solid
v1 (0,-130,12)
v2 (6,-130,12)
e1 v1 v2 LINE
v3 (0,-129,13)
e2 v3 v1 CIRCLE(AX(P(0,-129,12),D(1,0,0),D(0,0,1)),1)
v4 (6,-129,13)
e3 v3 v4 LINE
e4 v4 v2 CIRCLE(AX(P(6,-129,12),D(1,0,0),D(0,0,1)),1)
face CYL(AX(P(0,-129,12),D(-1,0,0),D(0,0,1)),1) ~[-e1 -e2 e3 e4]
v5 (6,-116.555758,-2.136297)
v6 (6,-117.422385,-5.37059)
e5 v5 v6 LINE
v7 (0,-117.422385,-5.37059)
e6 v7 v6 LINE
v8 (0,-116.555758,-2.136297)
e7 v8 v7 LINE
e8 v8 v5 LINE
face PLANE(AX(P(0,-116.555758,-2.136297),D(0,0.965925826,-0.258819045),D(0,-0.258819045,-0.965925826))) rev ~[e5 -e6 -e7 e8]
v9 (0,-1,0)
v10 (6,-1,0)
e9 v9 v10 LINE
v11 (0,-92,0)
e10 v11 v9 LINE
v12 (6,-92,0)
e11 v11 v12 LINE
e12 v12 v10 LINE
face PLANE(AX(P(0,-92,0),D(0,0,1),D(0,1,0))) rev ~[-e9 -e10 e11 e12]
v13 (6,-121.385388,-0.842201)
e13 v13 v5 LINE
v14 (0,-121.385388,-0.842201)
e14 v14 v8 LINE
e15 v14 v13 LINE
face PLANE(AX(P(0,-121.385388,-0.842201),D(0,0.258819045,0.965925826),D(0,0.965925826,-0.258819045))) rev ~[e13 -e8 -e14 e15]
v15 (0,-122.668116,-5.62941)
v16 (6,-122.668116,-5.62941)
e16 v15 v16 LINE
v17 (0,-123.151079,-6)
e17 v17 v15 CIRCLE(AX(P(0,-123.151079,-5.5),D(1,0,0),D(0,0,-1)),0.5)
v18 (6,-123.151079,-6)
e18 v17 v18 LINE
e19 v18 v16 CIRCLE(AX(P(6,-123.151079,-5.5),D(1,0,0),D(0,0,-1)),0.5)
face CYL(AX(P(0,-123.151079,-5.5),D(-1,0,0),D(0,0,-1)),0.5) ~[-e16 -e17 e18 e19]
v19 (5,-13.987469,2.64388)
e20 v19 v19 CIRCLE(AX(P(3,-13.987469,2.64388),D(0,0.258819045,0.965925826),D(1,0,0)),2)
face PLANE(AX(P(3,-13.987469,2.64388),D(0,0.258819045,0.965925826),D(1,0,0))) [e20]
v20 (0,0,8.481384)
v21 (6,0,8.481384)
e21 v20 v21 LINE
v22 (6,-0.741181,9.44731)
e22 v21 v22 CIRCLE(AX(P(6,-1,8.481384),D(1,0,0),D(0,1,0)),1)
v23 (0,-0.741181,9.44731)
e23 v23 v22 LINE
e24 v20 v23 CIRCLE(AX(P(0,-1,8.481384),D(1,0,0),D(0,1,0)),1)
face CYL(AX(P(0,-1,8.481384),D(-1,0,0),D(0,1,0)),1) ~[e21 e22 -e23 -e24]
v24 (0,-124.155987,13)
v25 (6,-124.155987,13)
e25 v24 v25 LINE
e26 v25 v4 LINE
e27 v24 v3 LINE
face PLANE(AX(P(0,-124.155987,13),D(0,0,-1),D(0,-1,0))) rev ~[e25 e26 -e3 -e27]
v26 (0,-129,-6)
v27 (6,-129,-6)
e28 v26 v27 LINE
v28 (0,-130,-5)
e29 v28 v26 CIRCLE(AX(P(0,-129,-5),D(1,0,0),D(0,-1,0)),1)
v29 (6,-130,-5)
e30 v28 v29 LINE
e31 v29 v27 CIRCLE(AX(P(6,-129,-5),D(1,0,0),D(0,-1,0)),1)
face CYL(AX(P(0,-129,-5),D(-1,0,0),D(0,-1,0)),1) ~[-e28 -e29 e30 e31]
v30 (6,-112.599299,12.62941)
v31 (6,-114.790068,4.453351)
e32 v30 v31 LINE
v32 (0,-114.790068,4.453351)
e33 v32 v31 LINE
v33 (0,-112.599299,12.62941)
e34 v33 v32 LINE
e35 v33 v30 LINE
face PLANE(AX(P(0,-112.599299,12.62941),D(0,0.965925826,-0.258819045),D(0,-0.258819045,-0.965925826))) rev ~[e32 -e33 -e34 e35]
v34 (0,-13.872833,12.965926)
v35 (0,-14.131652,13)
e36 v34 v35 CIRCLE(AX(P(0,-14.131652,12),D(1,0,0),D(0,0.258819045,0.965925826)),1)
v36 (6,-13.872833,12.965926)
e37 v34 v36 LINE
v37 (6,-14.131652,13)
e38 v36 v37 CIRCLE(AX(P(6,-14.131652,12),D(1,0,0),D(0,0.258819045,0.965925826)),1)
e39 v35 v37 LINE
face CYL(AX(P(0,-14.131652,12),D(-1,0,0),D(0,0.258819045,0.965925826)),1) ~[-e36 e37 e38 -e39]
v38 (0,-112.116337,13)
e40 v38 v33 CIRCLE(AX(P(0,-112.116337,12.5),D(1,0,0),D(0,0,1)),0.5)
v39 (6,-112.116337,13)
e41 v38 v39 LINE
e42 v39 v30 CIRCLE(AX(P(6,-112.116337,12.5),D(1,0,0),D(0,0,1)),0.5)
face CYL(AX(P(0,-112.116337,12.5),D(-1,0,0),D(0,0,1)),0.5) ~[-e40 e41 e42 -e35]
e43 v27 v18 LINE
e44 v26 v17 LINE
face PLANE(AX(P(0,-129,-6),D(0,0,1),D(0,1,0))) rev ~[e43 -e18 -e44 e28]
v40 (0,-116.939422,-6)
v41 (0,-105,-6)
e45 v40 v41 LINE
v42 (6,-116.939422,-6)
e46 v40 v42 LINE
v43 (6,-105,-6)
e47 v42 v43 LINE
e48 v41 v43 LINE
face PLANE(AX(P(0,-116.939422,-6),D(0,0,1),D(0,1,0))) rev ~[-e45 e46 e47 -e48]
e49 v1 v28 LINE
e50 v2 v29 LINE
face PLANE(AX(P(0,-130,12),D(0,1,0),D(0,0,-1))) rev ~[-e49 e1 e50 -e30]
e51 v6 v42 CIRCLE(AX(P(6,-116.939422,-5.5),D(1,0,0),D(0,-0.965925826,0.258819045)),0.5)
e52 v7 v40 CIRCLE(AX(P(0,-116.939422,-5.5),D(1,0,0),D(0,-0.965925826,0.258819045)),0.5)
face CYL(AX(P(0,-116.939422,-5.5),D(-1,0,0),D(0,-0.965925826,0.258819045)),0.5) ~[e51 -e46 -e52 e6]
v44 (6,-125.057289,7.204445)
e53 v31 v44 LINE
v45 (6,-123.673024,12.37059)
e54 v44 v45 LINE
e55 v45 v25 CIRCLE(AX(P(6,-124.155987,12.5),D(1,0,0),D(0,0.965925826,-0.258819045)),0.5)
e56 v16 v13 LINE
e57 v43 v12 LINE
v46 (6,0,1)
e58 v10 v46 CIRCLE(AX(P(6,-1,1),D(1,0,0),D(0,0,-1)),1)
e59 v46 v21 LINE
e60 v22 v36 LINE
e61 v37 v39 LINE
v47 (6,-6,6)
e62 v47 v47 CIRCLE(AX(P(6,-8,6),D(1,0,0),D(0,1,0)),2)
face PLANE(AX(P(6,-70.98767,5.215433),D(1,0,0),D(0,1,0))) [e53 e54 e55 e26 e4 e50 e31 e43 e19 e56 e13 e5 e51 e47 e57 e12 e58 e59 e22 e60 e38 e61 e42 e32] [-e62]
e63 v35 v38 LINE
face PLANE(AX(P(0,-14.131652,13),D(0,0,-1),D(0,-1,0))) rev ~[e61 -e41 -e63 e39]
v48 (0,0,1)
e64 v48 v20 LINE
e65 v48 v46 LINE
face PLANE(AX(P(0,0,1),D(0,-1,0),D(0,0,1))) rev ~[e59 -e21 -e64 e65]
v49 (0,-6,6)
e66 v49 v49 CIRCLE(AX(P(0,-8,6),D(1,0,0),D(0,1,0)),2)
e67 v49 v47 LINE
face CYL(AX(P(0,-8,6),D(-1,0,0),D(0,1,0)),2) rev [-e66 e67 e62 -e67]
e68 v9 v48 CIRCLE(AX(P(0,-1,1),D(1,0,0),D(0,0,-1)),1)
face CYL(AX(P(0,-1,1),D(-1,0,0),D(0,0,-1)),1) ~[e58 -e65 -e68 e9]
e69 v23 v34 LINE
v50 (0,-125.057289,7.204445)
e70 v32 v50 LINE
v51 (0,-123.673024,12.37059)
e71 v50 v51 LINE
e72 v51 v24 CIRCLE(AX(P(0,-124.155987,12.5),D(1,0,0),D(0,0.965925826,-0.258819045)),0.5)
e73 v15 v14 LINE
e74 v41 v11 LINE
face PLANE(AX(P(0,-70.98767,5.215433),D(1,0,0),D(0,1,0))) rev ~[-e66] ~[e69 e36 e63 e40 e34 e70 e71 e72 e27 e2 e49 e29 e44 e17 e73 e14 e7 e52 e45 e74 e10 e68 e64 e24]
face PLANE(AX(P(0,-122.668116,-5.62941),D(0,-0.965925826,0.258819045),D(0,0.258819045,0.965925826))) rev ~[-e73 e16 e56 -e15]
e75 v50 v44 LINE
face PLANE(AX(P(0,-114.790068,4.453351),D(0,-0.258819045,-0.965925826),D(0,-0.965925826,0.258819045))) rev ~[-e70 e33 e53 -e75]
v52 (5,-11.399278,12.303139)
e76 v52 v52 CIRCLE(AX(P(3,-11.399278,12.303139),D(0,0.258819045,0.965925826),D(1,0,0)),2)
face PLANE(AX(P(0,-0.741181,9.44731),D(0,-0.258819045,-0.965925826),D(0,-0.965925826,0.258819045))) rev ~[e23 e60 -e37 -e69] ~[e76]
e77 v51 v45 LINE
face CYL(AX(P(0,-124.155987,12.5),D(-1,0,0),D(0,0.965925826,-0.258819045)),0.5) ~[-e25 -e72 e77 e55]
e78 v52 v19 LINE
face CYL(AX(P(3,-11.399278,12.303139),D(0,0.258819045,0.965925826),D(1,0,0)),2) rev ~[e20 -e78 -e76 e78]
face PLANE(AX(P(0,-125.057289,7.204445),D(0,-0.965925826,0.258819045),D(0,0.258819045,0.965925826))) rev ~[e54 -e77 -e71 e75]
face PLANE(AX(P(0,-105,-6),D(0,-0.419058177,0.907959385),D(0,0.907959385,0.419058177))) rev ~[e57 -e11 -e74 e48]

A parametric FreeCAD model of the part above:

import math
import FreeCAD as App
import Part
import Sketcher
Q = App.Units.Quantity

doc = App.newDocument("Part")
body = doc.addObject("PartDesign::Body", "Body")

sketch1 = body.newObject("Sketcher::SketchObject", "Sketch")
sketch1.AttachmentSupport = (doc.getObject("YZ_Plane"), [""])
sketch1.MapMode = "FlatFace"
sketch1.addGeometry([
    Part.LineSegment(App.Vector(-92, 0, 0), App.Vector(-1, 0, 0)),
    Part.ArcOfCircle(Part.Circle(App.Vector(-1, 1, 0), App.Vector(0, 0, 1), 1), math.radians(-90), math.radians(0)),
    Part.LineSegment(App.Vector(0, 1, 0), App.Vector(0, 8.481384, 0)),
    Part.ArcOfCircle(Part.Circle(App.Vector(-1, 8.481384, 0), App.Vector(0, 0, 1), 1), math.radians(0), math.radians(75)),
    Part.LineSegment(App.Vector(-0.741181, 9.44731, 0), App.Vector(-13.872833, 12.965926, 0)),
    Part.ArcOfCircle(Part.Circle(App.Vector(-14.131652, 12, 0), App.Vector(0, 0, 1), 1), math.radians(75), math.radians(90)),
    Part.LineSegment(App.Vector(-14.131652, 13, 0), App.Vector(-112.116337, 13, 0)),
    Part.ArcOfCircle(Part.Circle(App.Vector(-112.116337, 12.5, 0), App.Vector(0, 0, 1), 0.5), math.radians(90), math.radians(165)),
    Part.LineSegment(App.Vector(-112.599299, 12.62941, 0), App.Vector(-114.790068, 4.453351, 0)),
    Part.LineSegment(App.Vector(-114.790068, 4.453351, 0), App.Vector(-125.057289, 7.204445, 0)),
    Part.LineSegment(App.Vector(-125.057289, 7.204445, 0), App.Vector(-123.673024, 12.37059, 0)),
    Part.ArcOfCircle(Part.Circle(App.Vector(-124.155987, 12.5, 0), App.Vector(0, 0, 1), 0.5), math.radians(-15), math.radians(90)),
    Part.LineSegment(App.Vector(-124.155987, 13, 0), App.Vector(-129, 13, 0)),
    Part.ArcOfCircle(Part.Circle(App.Vector(-129, 12, 0), App.Vector(0, 0, 1), 1), math.radians(90), math.radians(180)),
    Part.LineSegment(App.Vector(-130, 12, 0), App.Vector(-130, -5, 0)),
    Part.ArcOfCircle(Part.Circle(App.Vector(-129, -5, 0), App.Vector(0, 0, 1), 1), math.radians(180), math.radians(270)),
    Part.LineSegment(App.Vector(-129, -6, 0), App.Vector(-123.151079, -6, 0)),
    Part.ArcOfCircle(Part.Circle(App.Vector(-123.151079, -5.5, 0), App.Vector(0, 0, 1), 0.5), math.radians(-90), math.radians(-15)),
    Part.LineSegment(App.Vector(-122.668116, -5.62941, 0), App.Vector(-121.385388, -0.842201, 0)),
    Part.LineSegment(App.Vector(-121.385388, -0.842201, 0), App.Vector(-116.555758, -2.136297, 0)),
    Part.LineSegment(App.Vector(-116.555758, -2.136297, 0), App.Vector(-117.422385, -5.37059, 0)),
    Part.ArcOfCircle(Part.Circle(App.Vector(-116.939422, -5.5, 0), App.Vector(0, 0, 1), 0.5), math.radians(165), math.radians(270)),
    Part.LineSegment(App.Vector(-116.939422, -6, 0), App.Vector(-105, -6, 0)),
    Part.LineSegment(App.Vector(-105, -6, 0), App.Vector(-92, 0, 0)),
    Part.Circle(App.Vector(-8, 6, 0), App.Vector(0, 0, 1), 2),
], False)
sketch1.addConstraint([
    Sketcher.Constraint("Tangent", 0, 2, 1, 1),
    Sketcher.Constraint("Tangent", 1, 2, 2, 1),
    Sketcher.Constraint("Tangent", 2, 2, 3, 1),
    Sketcher.Constraint("Tangent", 3, 2, 4, 1),
    Sketcher.Constraint("Tangent", 4, 2, 5, 1),
    Sketcher.Constraint("Tangent", 5, 2, 6, 1),
    Sketcher.Constraint("Tangent", 6, 2, 7, 1),
    Sketcher.Constraint("Tangent", 7, 2, 8, 1),
    Sketcher.Constraint("Coincident", 8, 2, 9, 1),
    Sketcher.Constraint("Coincident", 9, 2, 10, 1),
    Sketcher.Constraint("Tangent", 10, 2, 11, 1),
    Sketcher.Constraint("Tangent", 11, 2, 12, 1),
    Sketcher.Constraint("Tangent", 12, 2, 13, 1),
    Sketcher.Constraint("Tangent", 13, 2, 14, 1),
    Sketcher.Constraint("Tangent", 14, 2, 15, 1),
    Sketcher.Constraint("Tangent", 15, 2, 16, 1),
    Sketcher.Constraint("Tangent", 16, 2, 17, 1),
    Sketcher.Constraint("Tangent", 17, 2, 18, 1),
    Sketcher.Constraint("Coincident", 18, 2, 19, 1),
    Sketcher.Constraint("Coincident", 19, 2, 20, 1),
    Sketcher.Constraint("Tangent", 20, 2, 21, 1),
    Sketcher.Constraint("Tangent", 21, 2, 22, 1),
    Sketcher.Constraint("Coincident", 22, 2, 23, 1),
    Sketcher.Constraint("Coincident", 23, 2, 0, 1),
    Sketcher.Constraint("Horizontal", 0),
    Sketcher.Constraint("Vertical", 2),
    Sketcher.Constraint("Horizontal", 6),
    Sketcher.Constraint("Horizontal", 12),
    Sketcher.Constraint("Vertical", 14),
    Sketcher.Constraint("Horizontal", 16),
    Sketcher.Constraint("Horizontal", 22),
    Sketcher.Constraint("Equal", 1, 3),
    Sketcher.Constraint("Equal", 3, 5),
    Sketcher.Constraint("Equal", 7, 11),
    Sketcher.Constraint("Equal", 5, 13),
    Sketcher.Constraint("Equal", 13, 15),
    Sketcher.Constraint("Equal", 11, 17),
    Sketcher.Constraint("Equal", 17, 21),
    Sketcher.Constraint("PointOnObject", 0, 2, -1),
    Sketcher.Constraint("PointOnObject", 1, 2, -2),
    Sketcher.Constraint("Perpendicular", 4, 8),
    Sketcher.Constraint("Perpendicular", 8, 9),
    Sketcher.Constraint("Perpendicular", 9, 10),
    Sketcher.Constraint("Parallel", 10, 18),
    Sketcher.Constraint("Perpendicular", 18, 19),
    Sketcher.Constraint("Perpendicular", 19, 20),
    Sketcher.Constraint("Horizontal", 7, 3, 11, 3),
    Sketcher.Constraint("Horizontal", 17, 3, 21, 3),
    Sketcher.Constraint("Diameter", 24, 4.0),
    Sketcher.Constraint("Radius", 1, 1.0),
    Sketcher.Constraint("Radius", 7, 0.5),
    Sketcher.Constraint("DistanceX", 0, 1, 0, 2, 91.0),
    Sketcher.Constraint("DistanceY", 14, 2, 14, 1, 17.0),
    Sketcher.Constraint("Angle", 4, Q("165 deg")),
    Sketcher.Constraint("Distance", 19, 5.0),
    Sketcher.Constraint("DistanceY", -1, 1, 5, 3, 12.0),
    Sketcher.Constraint("DistanceX", 13, 3, -1, 1, 129.0),
    Sketcher.Constraint("DistanceX", 24, 3, -1, 1, 8.0),
    Sketcher.Constraint("DistanceY", -1, 1, 24, 3, 6.0),
    Sketcher.Constraint("DistanceX", 22, 2, -1, 1, 105.0),
    Sketcher.Constraint("DistanceX", 16, 1, 16, 2, 5.848921),
    Sketcher.Constraint("DistanceX", 7, 2, -1, 1, 112.599299),
    Sketcher.Constraint("DistanceY", 18, 2, -1, 1, 0.842201),
    Sketcher.Constraint("DistanceX", 9, 2, 11, 3, 0.901302),
    Sketcher.Constraint("Distance", 8, 8.464478),
    Sketcher.Constraint("DistanceX", 6, 2, 6, 1, 97.984684),
])
pad1 = body.newObject("PartDesign::Pad", "Pad")
pad1.Profile = sketch1
pad1.Length = 6

sketch2 = body.newObject("Sketcher::SketchObject", "Sketch001")
sketch2.Placement = App.Placement(App.Vector(0, 2.312178, 8.629165), App.Rotation(App.Vector(1, 0, 0), App.Vector(0, 0.965925826, -0.258819045), App.Vector(0, 0.258819045, 0.965925826), "ZXY"))
sketch2.addGeometry(Part.Circle(App.Vector(3, -14.195144, 0), App.Vector(0, 0, 1), 2), False)
sketch2.addConstraint([
    Sketcher.Constraint("Diameter", 0, 4.0),
    Sketcher.Constraint("DistanceX", -1, 1, 0, 3, 3.0),
    Sketcher.Constraint("DistanceY", 0, 3, -1, 1, 14.195144),
])
pocket1 = body.newObject("PartDesign::Pocket", "Pocket")
pocket1.Profile = sketch2
pocket1.Length = 10

doc.recompute()
